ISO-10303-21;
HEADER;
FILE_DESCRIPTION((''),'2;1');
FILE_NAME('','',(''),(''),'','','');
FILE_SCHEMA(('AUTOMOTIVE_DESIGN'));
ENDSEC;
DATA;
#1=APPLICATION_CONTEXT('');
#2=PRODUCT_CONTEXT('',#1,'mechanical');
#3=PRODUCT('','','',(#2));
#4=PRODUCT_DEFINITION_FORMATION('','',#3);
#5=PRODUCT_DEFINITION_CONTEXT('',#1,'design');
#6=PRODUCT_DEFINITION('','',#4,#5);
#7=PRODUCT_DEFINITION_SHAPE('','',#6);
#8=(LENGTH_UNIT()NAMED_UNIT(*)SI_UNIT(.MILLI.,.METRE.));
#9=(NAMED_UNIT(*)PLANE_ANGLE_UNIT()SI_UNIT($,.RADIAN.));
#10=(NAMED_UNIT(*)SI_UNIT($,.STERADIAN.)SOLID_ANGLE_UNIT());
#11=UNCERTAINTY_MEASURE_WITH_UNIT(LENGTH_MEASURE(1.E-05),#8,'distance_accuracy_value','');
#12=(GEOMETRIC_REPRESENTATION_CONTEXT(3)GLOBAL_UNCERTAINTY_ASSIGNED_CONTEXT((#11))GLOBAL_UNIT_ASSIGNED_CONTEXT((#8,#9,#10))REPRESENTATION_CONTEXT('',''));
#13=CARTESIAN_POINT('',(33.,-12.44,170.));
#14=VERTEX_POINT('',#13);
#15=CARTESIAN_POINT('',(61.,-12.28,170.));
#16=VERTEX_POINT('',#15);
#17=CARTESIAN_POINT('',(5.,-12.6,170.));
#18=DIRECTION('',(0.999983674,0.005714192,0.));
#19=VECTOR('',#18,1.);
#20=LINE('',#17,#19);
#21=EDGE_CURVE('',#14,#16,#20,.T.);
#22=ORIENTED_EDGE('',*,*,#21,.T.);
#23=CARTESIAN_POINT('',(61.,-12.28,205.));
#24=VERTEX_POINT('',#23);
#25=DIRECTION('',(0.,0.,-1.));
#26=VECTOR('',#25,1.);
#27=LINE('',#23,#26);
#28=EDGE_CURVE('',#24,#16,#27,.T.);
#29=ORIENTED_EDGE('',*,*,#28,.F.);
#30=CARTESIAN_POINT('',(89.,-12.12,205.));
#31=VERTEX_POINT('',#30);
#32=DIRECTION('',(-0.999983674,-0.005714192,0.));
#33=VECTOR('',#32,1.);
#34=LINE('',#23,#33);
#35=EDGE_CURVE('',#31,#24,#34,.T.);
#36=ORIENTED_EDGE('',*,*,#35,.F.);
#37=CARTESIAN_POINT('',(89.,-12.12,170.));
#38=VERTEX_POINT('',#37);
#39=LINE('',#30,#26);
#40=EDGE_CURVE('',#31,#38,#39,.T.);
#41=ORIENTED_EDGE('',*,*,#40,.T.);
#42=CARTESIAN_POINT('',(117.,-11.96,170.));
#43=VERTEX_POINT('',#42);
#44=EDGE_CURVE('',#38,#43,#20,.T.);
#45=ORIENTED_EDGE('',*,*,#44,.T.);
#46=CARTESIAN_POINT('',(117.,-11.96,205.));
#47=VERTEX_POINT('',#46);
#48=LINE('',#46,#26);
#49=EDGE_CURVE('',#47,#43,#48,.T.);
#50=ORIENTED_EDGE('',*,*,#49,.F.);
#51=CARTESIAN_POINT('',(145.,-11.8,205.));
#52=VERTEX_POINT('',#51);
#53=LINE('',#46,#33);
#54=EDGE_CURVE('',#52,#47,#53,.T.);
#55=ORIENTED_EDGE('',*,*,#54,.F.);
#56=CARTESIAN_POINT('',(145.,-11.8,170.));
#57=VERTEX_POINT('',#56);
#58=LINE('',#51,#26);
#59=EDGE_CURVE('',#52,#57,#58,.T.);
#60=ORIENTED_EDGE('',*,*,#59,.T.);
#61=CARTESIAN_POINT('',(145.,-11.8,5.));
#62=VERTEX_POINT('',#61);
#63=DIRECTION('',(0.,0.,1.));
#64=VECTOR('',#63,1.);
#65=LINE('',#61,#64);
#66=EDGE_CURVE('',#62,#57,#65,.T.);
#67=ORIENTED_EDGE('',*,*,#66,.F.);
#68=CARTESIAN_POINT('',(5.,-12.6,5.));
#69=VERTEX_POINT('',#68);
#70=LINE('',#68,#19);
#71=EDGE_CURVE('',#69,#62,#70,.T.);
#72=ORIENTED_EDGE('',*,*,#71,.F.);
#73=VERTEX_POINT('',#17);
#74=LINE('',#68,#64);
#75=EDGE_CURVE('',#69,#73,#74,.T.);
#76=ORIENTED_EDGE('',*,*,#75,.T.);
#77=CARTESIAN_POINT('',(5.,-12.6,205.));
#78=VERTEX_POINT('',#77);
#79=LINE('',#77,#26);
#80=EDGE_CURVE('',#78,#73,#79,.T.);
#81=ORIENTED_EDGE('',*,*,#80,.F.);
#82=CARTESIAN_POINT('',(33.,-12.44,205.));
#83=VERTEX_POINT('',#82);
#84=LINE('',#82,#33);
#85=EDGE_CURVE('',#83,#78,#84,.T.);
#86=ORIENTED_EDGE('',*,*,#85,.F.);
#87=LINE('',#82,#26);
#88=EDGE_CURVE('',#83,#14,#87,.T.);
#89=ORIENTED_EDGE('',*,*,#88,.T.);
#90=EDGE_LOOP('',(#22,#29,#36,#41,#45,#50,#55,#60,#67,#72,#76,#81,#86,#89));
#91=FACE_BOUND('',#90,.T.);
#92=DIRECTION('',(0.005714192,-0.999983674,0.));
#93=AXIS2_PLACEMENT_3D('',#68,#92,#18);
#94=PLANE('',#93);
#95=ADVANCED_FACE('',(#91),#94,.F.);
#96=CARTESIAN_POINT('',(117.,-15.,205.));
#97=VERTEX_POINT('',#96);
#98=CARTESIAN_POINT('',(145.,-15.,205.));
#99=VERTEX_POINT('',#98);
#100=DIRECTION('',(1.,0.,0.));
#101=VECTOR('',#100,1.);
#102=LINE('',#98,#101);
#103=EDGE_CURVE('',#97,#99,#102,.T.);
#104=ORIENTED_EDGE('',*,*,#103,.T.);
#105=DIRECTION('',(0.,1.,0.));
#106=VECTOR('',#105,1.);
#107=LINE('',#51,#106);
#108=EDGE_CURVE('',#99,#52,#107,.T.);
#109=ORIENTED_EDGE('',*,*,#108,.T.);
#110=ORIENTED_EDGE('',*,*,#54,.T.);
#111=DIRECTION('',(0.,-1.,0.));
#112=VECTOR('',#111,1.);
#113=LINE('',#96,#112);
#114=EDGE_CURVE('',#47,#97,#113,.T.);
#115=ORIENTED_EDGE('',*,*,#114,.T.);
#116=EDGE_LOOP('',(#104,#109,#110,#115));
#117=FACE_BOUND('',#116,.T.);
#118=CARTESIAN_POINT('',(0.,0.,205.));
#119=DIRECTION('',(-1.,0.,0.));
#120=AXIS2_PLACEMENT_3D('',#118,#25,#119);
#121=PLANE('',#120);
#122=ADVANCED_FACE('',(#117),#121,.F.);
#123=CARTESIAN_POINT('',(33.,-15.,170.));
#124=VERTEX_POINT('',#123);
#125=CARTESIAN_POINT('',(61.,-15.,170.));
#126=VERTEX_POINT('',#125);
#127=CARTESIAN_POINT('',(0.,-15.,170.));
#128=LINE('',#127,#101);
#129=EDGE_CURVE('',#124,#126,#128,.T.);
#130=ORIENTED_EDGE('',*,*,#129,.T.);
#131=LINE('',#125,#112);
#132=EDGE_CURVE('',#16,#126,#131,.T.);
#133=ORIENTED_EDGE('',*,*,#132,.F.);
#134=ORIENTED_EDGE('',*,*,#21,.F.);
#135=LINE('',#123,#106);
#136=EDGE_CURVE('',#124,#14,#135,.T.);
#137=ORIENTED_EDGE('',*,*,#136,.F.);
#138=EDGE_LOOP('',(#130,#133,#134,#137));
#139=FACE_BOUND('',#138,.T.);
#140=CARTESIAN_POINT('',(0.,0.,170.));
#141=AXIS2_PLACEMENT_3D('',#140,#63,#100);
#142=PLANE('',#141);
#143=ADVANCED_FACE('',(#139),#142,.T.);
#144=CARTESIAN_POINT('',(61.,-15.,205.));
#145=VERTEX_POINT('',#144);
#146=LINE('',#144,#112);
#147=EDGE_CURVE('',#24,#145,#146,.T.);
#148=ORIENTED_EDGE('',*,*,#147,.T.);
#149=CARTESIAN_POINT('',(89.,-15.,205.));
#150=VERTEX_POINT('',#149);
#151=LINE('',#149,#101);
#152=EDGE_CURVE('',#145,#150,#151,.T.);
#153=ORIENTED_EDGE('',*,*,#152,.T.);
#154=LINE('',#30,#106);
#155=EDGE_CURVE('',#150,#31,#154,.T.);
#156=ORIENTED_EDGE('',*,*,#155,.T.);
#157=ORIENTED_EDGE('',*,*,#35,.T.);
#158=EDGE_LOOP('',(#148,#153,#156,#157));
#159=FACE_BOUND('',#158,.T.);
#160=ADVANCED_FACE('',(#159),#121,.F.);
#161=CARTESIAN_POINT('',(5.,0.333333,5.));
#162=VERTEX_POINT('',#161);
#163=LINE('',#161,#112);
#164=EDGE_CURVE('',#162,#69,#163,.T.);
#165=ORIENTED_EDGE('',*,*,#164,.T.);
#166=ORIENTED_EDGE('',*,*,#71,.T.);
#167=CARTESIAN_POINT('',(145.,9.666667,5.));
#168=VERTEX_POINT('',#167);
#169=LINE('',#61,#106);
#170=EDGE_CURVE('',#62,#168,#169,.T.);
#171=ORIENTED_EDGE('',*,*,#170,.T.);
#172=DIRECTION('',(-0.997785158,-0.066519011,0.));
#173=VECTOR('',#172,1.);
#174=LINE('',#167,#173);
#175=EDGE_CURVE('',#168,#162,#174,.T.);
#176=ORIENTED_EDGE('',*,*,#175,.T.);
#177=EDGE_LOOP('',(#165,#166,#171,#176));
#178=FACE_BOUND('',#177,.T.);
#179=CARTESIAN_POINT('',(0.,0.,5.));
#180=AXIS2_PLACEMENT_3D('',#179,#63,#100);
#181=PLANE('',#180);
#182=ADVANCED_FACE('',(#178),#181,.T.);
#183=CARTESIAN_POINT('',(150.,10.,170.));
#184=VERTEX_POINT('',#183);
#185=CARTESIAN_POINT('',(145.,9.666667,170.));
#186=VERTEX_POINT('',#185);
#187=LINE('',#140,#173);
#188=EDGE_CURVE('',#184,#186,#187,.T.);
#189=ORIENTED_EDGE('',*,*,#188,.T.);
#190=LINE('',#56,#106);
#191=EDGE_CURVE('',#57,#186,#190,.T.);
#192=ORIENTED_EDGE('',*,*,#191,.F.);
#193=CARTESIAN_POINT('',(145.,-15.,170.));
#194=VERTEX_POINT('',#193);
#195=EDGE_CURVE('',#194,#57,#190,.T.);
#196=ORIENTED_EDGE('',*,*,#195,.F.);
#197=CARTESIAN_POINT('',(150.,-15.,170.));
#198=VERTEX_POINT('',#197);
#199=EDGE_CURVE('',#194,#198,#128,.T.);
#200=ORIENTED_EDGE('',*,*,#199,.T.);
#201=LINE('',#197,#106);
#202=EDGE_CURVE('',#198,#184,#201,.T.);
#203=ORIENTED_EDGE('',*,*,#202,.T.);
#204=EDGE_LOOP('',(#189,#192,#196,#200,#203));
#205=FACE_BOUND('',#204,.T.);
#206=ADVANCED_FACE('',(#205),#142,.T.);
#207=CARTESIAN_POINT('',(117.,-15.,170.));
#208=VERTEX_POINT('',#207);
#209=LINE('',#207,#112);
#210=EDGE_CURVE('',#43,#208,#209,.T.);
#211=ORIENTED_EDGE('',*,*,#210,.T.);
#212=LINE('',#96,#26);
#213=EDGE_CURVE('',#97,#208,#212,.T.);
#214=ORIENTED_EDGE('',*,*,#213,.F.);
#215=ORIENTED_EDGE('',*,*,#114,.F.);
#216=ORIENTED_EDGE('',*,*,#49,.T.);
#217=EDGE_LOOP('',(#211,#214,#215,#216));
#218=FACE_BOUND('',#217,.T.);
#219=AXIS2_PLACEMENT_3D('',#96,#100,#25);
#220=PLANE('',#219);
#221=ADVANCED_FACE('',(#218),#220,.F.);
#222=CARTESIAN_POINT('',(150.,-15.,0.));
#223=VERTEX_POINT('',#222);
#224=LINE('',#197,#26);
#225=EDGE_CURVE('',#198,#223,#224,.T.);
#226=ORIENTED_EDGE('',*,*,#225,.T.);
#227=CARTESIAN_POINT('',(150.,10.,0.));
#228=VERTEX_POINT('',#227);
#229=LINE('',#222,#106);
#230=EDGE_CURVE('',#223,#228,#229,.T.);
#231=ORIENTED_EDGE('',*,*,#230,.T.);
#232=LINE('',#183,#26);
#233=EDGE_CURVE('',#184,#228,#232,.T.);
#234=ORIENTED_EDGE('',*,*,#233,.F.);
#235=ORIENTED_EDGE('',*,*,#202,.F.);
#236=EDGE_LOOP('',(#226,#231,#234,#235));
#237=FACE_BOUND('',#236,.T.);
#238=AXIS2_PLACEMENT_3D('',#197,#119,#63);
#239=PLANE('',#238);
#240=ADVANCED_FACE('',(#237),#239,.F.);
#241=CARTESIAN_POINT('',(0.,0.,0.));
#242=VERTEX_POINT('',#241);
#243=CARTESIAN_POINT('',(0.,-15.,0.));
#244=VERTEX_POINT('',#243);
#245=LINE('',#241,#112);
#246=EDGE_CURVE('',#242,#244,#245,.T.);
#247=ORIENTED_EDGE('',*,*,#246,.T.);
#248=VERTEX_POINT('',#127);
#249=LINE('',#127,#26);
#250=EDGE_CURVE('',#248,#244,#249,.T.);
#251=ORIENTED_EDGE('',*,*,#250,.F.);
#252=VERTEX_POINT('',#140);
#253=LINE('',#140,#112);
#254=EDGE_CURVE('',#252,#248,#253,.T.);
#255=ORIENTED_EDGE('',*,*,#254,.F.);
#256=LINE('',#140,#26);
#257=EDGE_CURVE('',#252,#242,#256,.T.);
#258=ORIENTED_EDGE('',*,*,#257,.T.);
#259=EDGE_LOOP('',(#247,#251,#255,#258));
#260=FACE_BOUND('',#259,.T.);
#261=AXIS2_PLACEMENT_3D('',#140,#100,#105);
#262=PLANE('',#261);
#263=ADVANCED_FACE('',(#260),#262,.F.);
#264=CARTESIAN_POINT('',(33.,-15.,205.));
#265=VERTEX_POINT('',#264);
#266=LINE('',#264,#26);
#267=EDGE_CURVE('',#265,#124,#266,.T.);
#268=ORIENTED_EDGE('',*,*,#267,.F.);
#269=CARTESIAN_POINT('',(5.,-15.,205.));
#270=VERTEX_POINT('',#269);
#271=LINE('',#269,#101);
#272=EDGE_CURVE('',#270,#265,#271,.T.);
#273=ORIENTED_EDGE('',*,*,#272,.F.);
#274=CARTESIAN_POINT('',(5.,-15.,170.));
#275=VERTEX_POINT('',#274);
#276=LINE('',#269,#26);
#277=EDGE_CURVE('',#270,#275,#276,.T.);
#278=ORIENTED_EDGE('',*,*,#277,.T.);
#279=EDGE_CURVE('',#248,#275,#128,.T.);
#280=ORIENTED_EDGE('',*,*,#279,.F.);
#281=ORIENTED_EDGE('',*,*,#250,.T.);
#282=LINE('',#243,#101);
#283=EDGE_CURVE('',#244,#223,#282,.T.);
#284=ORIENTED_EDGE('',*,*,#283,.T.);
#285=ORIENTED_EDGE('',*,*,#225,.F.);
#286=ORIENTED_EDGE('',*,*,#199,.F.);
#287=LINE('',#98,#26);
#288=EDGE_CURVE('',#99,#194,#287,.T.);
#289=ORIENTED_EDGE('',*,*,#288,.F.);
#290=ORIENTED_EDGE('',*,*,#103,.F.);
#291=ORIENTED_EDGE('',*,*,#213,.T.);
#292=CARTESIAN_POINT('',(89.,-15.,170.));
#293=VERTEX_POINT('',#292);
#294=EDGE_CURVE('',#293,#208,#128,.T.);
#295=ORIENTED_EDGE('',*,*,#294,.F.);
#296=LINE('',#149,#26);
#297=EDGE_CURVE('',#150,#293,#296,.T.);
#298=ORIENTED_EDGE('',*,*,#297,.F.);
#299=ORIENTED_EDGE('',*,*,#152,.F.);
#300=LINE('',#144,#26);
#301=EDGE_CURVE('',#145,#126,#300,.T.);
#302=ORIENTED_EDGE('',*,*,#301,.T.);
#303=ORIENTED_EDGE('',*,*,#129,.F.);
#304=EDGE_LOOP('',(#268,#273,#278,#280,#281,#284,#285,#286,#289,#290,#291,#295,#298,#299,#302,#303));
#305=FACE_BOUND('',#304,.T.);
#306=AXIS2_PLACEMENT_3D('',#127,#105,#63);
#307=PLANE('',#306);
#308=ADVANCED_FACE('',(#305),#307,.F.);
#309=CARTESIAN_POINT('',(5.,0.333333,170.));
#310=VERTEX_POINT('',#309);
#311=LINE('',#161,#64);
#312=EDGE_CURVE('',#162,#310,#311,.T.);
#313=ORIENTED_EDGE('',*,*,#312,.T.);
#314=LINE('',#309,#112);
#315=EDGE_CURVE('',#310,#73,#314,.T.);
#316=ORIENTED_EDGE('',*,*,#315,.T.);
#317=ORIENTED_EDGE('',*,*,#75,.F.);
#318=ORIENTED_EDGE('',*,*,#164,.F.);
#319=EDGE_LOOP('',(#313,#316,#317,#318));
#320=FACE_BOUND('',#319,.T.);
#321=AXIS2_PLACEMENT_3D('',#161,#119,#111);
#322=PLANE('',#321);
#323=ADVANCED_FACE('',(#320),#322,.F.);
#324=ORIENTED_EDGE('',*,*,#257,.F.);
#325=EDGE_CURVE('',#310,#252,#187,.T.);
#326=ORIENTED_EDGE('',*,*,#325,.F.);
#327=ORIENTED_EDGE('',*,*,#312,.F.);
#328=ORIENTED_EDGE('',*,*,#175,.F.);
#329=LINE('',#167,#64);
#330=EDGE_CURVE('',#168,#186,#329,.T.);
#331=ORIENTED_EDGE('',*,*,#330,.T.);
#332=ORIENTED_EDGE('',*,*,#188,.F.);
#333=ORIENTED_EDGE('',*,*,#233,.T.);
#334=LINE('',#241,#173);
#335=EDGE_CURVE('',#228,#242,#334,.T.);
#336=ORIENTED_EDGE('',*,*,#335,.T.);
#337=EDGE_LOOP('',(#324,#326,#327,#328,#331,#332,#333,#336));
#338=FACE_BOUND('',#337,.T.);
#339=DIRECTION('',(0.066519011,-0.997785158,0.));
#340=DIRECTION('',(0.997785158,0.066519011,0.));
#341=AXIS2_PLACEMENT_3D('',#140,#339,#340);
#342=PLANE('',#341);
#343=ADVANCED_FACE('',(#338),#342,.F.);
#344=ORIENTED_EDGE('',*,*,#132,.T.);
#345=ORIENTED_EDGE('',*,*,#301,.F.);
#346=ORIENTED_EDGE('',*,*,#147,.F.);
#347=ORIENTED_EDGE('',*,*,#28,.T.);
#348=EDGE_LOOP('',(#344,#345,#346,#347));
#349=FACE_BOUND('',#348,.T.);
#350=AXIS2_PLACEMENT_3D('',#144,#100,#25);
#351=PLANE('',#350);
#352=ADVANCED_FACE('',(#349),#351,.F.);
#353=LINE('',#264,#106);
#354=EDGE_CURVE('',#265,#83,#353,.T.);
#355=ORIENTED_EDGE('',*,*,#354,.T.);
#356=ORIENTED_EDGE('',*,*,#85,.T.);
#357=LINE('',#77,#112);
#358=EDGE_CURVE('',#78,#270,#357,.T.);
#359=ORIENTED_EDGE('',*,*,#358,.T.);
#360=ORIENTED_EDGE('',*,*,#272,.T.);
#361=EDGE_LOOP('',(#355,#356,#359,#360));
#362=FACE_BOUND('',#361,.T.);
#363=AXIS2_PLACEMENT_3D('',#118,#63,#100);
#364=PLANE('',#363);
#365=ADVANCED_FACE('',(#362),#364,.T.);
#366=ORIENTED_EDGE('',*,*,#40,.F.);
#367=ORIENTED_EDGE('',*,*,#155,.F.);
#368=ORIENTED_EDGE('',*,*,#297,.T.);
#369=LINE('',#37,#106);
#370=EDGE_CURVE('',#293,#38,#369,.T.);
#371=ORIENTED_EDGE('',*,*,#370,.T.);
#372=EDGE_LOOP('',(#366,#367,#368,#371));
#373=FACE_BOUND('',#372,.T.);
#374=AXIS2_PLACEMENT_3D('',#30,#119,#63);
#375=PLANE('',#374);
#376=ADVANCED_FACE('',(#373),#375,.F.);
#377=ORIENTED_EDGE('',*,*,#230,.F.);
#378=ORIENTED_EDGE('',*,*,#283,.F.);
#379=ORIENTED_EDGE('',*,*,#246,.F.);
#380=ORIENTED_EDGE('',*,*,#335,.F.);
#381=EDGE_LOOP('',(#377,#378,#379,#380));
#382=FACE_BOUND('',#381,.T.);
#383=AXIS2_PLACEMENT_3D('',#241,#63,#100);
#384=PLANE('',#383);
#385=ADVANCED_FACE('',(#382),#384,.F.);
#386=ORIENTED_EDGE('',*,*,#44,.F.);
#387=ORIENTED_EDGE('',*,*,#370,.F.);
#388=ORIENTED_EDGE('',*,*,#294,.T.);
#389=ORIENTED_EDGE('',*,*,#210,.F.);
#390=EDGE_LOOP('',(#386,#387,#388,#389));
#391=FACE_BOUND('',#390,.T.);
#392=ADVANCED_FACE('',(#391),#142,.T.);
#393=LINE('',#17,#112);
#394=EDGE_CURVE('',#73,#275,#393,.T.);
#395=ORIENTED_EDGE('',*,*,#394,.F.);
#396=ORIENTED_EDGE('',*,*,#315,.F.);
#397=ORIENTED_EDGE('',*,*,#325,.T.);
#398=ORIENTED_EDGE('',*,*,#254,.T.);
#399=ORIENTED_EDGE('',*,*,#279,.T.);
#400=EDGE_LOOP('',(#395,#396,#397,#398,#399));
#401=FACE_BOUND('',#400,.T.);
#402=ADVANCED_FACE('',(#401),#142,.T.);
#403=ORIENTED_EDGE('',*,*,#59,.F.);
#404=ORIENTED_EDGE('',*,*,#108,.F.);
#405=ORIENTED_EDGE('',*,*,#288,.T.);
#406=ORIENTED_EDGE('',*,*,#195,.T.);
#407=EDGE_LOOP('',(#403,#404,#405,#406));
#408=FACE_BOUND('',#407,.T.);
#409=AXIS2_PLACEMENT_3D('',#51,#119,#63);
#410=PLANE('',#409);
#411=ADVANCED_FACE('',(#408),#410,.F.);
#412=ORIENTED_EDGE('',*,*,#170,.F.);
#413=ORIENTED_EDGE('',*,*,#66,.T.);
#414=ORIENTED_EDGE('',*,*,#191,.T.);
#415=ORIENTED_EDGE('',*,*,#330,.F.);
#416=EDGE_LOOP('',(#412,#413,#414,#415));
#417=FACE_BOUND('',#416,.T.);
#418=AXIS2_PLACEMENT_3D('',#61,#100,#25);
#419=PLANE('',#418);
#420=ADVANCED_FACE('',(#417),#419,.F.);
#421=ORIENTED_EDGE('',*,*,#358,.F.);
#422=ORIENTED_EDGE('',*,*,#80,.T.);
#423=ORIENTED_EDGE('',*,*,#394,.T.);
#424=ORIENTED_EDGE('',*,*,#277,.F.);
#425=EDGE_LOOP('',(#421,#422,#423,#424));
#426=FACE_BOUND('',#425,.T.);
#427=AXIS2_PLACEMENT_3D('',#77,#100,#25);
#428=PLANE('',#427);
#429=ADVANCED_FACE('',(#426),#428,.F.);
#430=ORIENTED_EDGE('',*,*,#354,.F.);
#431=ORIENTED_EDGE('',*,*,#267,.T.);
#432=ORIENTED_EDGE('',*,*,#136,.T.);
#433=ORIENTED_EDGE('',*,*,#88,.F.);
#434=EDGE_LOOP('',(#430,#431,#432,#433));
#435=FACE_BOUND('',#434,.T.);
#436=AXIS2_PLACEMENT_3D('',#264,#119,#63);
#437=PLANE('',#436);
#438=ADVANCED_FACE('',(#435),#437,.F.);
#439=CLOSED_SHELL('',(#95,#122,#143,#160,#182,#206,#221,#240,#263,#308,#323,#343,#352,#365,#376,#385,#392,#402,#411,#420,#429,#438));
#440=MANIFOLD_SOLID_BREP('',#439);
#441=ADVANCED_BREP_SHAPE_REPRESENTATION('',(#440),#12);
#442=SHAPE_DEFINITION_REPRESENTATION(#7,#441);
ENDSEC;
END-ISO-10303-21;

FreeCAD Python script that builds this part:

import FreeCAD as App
import Part
import Sketcher
Q = App.Units.Quantity


def add_polygon(sketch, points):
    """Adds a closed chain of lines whose ends are joined by coincident constraints."""
    first, n = sketch.GeometryCount, len(points)
    for a, b in zip(points, points[1:] + points[:1]):
        sketch.addGeometry(Part.LineSegment(App.Vector(*a, 0), App.Vector(*b, 0)), False)
    for i in range(n):
        sketch.addConstraint(Sketcher.Constraint("Coincident", first + i, 2, first + (i + 1) % n, 1))

doc = App.newDocument("Part")
body = doc.addObject("PartDesign::Body", "Body")

# Sketch on XY plane
sketch1 = body.newObject("Sketcher::SketchObject", "Sketch")
sketch1.AttachmentSupport = (doc.getObject("XY_Plane"), [""])
sketch1.MapMode = "FlatFace"
add_polygon(sketch1, [(0, 0), (0, -15), (150, -15), (150, 10)])  # lines 0-3
sketch1.addConstraint(Sketcher.Constraint("Vertical", 0))
sketch1.addConstraint(Sketcher.Constraint("Horizontal", 1))
sketch1.addConstraint(Sketcher.Constraint("Vertical", 2))
sketch1.addConstraint(Sketcher.Constraint("Coincident", 3, 2, -1, 1))
sketch1.addConstraint(Sketcher.Constraint("DistanceX", 1, 1, 1, 2, Q("150 mm")))
sketch1.addConstraint(Sketcher.Constraint("DistanceY", 0, 2, 0, 1, Q("15 mm")))
sketch1.addConstraint(Sketcher.Constraint("DistanceY", 2, 1, 2, 2, Q("25 mm")))
pad1 = body.newObject("PartDesign::Pad", "Pad")
pad1.Profile = sketch1
pad1.Length = 170

# Sketch on XY plane
sketch2 = body.newObject("Sketcher::SketchObject", "Sketch001")
sketch2.AttachmentSupport = (doc.getObject("XY_Plane"), [""])
sketch2.MapMode = "FlatFace"
sketch2.AttachmentOffset = App.Placement(App.Vector(0, 0, 170), App.Rotation())
add_polygon(sketch2, [(5, 0), (5, -13), (145, -12), (145, 10)])  # lines 0-3
sketch2.addConstraint(Sketcher.Constraint("Vertical", 0))
sketch2.addConstraint(Sketcher.Constraint("Vertical", 2))
sketch2.addConstraint(Sketcher.Constraint("DistanceX", -1, 1, 0, 2, Q("5 mm")))
sketch2.addConstraint(Sketcher.Constraint("DistanceX", -1, 1, 1, 2, Q("145 mm")))
sketch2.addConstraint(Sketcher.Constraint("DistanceY", 0, 2, -1, 1, Q("12.6 mm")))
sketch2.addConstraint(Sketcher.Constraint("DistanceY", 1, 2, -1, 1, Q("11.8 mm")))
sketch2.addConstraint(Sketcher.Constraint("DistanceY", 0, 2, 0, 1, Q("12.933333 mm")))
sketch2.addConstraint(Sketcher.Constraint("DistanceY", 2, 1, 2, 2, Q("21.466667 mm")))
pocket1 = body.newObject("PartDesign::Pocket", "Pocket")
pocket1.Profile = sketch2
pocket1.Length = 165

# Sketch on XY plane
sketch3 = body.newObject("Sketcher::SketchObject", "Sketch002")
sketch3.AttachmentSupport = (doc.getObject("XY_Plane"), [""])
sketch3.MapMode = "FlatFace"
sketch3.AttachmentOffset = App.Placement(App.Vector(0, 0, 170), App.Rotation())
add_polygon(sketch3, [(145, -15), (145, -11.8), (117, -12), (117, -15)])  # lines 0-3
sketch3.addConstraint(Sketcher.Constraint("Vertical", 0))
sketch3.addConstraint(Sketcher.Constraint("Vertical", 2))
sketch3.addConstraint(Sketcher.Constraint("Horizontal", 3))
sketch3.addConstraint(Sketcher.Constraint("DistanceX", 3, 1, 3, 2, Q("28 mm")))
sketch3.addConstraint(Sketcher.Constraint("DistanceY", 0, 1, 0, 2, Q("3.2 mm")))
sketch3.addConstraint(Sketcher.Constraint("DistanceX", -1, 1, 0, 2, Q("145 mm")))
sketch3.addConstraint(Sketcher.Constraint("DistanceY", 2, 2, -1, 1, Q("15 mm")))
sketch3.addConstraint(Sketcher.Constraint("DistanceY", 2, 2, 2, 1, Q("3.04 mm")))
pad2 = body.newObject("PartDesign::Pad", "Pad001")
pad2.Profile = sketch3
pad2.Length = 35

# Sketch on XY plane
sketch4 = body.newObject("Sketcher::SketchObject", "Sketch003")
sketch4.AttachmentSupport = (doc.getObject("XY_Plane"), [""])
sketch4.MapMode = "FlatFace"
sketch4.AttachmentOffset = App.Placement(App.Vector(0, 0, 170), App.Rotation())
add_polygon(sketch4, [(89, -15), (89, -12.1), (61, -12.3), (61, -15)])  # lines 0-3
add_polygon(sketch4, [(5, -12.6), (5, -15), (33, -15), (33, -12.4)])  # lines 4-7
sketch4.addConstraint(Sketcher.Constraint("Vertical", 0))
sketch4.addConstraint(Sketcher.Constraint("Vertical", 2))
sketch4.addConstraint(Sketcher.Constraint("Horizontal", 3))
sketch4.addConstraint(Sketcher.Constraint("Vertical", 4))
sketch4.addConstraint(Sketcher.Constraint("Horizontal", 5))
sketch4.addConstraint(Sketcher.Constraint("Vertical", 6))
sketch4.addConstraint(Sketcher.Constraint("Parallel", 1, 7))
sketch4.addConstraint(Sketcher.Constraint("Horizontal", 3, 2, 4, 2))
sketch4.addConstraint(Sketcher.Constraint("Equal", 3, 5))
sketch4.addConstraint(Sketcher.Constraint("DistanceX", 3, 1, 3, 2, Q("28 mm")))
sketch4.addConstraint(Sketcher.Constraint("DistanceY", 4, 2, 4, 1, Q("2.4 mm")))
sketch4.addConstraint(Sketcher.Constraint("DistanceX", -1, 1, 0, 2, Q("89 mm")))
sketch4.addConstraint(Sketcher.Constraint("DistanceY", 2, 2, -1, 1, Q("15 mm")))
sketch4.addConstraint(Sketcher.Constraint("DistanceX", -1, 1, 4, 2, Q("5 mm")))
sketch4.addConstraint(Sketcher.Constraint("DistanceY", 0, 1, 0, 2, Q("2.88 mm")))
sketch4.addConstraint(Sketcher.Constraint("DistanceY", 2, 2, 2, 1, Q("2.72 mm")))
pad3 = body.newObject("PartDesign::Pad", "Pad002")
pad3.Profile = sketch4
pad3.Length = 35

doc.recompute()
